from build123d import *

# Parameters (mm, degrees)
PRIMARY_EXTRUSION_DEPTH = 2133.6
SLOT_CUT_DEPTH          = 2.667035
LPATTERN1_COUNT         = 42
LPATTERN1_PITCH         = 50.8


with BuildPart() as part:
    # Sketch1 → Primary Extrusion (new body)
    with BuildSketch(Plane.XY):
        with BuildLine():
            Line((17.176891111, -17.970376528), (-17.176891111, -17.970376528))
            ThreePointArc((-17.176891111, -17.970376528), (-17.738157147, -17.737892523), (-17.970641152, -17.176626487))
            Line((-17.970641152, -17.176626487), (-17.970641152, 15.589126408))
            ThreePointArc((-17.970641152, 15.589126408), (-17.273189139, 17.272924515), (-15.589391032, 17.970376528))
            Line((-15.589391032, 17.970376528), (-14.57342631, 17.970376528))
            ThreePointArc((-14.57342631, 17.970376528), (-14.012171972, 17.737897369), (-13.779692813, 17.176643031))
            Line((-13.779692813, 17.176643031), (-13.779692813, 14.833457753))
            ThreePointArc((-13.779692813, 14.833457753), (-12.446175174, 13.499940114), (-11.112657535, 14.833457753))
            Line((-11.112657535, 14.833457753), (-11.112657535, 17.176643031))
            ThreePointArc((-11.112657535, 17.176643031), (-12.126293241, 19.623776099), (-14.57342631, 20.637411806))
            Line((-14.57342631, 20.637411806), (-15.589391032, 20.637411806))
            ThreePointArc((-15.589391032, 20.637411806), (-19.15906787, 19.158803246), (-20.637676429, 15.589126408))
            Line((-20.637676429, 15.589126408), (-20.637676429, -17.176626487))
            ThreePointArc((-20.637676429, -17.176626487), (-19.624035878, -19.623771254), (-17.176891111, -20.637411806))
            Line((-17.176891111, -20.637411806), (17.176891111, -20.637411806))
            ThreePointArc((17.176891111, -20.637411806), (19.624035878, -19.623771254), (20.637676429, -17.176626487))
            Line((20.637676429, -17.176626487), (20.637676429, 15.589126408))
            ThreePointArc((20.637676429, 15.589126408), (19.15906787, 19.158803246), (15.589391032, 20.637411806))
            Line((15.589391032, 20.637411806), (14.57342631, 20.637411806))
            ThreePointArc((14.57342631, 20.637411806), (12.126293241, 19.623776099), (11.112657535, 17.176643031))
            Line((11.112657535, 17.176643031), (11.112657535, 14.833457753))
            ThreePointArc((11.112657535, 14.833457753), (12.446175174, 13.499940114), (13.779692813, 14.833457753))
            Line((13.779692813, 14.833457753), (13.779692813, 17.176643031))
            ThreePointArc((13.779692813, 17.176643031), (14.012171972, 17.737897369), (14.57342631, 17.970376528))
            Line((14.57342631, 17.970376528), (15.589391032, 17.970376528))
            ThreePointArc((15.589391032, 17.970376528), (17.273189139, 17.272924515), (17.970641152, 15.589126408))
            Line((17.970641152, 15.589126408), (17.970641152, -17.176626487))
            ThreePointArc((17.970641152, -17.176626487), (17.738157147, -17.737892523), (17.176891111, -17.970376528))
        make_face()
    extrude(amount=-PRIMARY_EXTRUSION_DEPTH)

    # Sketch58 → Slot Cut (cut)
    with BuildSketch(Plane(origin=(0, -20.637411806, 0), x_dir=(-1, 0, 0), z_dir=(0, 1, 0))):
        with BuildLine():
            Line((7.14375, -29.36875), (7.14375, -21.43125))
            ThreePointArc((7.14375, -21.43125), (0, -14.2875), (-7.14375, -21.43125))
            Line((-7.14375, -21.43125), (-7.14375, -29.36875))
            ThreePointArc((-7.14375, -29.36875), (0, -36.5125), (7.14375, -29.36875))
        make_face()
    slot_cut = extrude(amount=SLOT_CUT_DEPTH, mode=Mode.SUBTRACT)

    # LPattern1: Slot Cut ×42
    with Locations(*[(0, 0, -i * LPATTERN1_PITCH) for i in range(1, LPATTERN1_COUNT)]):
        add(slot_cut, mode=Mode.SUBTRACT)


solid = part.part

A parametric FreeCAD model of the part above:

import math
import FreeCAD as App
import Part
import Sketcher

V = App.Vector
Q = App.Units.Quantity

doc = App.newDocument("Part")
body = doc.addObject("PartDesign::Body", "Body")

sketch1 = body.newObject("Sketcher::SketchObject", "Sketch")
sketch1.AttachmentSupport = (doc.getObject("XY_Plane"), [""])
sketch1.MapMode = "FlatFace"
sketch1.addGeometry([
    Part.LineSegment(V(17.2, -18, 0), V(-17.2, -18, 0)),
    Part.ArcOfCircle(Part.Circle(V(-17.2, -17.2, 0), V(0, 0, 1), 0.8), math.radians(-180), math.radians(-90)),
    Part.LineSegment(V(-18, -17.2, 0), V(-18, 15.6, 0)),
    Part.ArcOfCircle(Part.Circle(V(-15.6, 15.6, 0), V(0, 0, 1), 2.4), math.radians(90), math.radians(180)),
    Part.LineSegment(V(-15.6, 18, 0), V(-14.6, 18, 0)),
    Part.ArcOfCircle(Part.Circle(V(-14.6, 17.2, 0), V(0, 0, 1), 0.8), math.radians(0), math.radians(90)),
    Part.LineSegment(V(-13.8, 17.2, 0), V(-13.8, 14.8, 0)),
    Part.ArcOfCircle(Part.Circle(V(-12.4, 14.8, 0), V(0, 0, 1), 1.3), math.radians(180), math.radians(360)),
    Part.LineSegment(V(-11.1, 14.8, 0), V(-11.1, 17.2, 0)),
    Part.ArcOfCircle(Part.Circle(V(-14.6, 17.2, 0), V(0, 0, 1), 3.5), math.radians(0), math.radians(90)),
    Part.LineSegment(V(-14.6, 20.6, 0), V(-15.6, 20.6, 0)),
    Part.ArcOfCircle(Part.Circle(V(-15.6, 15.6, 0), V(0, 0, 1), 5), math.radians(90), math.radians(180)),
    Part.LineSegment(V(-20.6, 15.6, 0), V(-20.6, -17.2, 0)),
    Part.ArcOfCircle(Part.Circle(V(-17.2, -17.2, 0), V(0, 0, 1), 3.5), math.radians(180), math.radians(270)),
    Part.LineSegment(V(-17.2, -20.6, 0), V(17.2, -20.6, 0)),
    Part.ArcOfCircle(Part.Circle(V(17.2, -17.2, 0), V(0, 0, 1), 3.5), math.radians(-90), math.radians(0)),
    Part.LineSegment(V(20.6, -17.2, 0), V(20.6, 15.6, 0)),
    Part.ArcOfCircle(Part.Circle(V(15.6, 15.6, 0), V(0, 0, 1), 5), math.radians(0), math.radians(90)),
    Part.LineSegment(V(15.6, 20.6, 0), V(14.6, 20.6, 0)),
    Part.ArcOfCircle(Part.Circle(V(14.6, 17.2, 0), V(0, 0, 1), 3.5), math.radians(90), math.radians(180)),
    Part.LineSegment(V(11.1, 17.2, 0), V(11.1, 14.8, 0)),
    Part.ArcOfCircle(Part.Circle(V(12.4, 14.8, 0), V(0, 0, 1), 1.3), math.radians(180), math.radians(360)),
    Part.LineSegment(V(13.8, 14.8, 0), V(13.8, 17.2, 0)),
    Part.ArcOfCircle(Part.Circle(V(14.6, 17.2, 0), V(0, 0, 1), 0.8), math.radians(90), math.radians(180)),
    Part.LineSegment(V(14.6, 18, 0), V(15.6, 18, 0)),
    Part.ArcOfCircle(Part.Circle(V(15.6, 15.6, 0), V(0, 0, 1), 2.4), math.radians(0), math.radians(90)),
    Part.LineSegment(V(18, 15.6, 0), V(18, -17.2, 0)),
    Part.ArcOfCircle(Part.Circle(V(17.2, -17.2, 0), V(0, 0, 1), 0.8), math.radians(-90), math.radians(0)),
], False)
sketch1.addConstraint([
    Sketcher.Constraint("Tangent", 0, 2, 1, 2),
    Sketcher.Constraint("Tangent", 1, 1, 2, 1),
    Sketcher.Constraint("Tangent", 2, 2, 3, 2),
    Sketcher.Constraint("Tangent", 3, 1, 4, 1),
    Sketcher.Constraint("Tangent", 4, 2, 5, 2),
    Sketcher.Constraint("Tangent", 5, 1, 6, 1),
    Sketcher.Constraint("Tangent", 6, 2, 7, 1),
    Sketcher.Constraint("Tangent", 7, 2, 8, 1),
    Sketcher.Constraint("Tangent", 8, 2, 9, 1),
    Sketcher.Constraint("Tangent", 9, 2, 10, 1),
    Sketcher.Constraint("Tangent", 10, 2, 11, 1),
    Sketcher.Constraint("Tangent", 11, 2, 12, 1),
    Sketcher.Constraint("Tangent", 12, 2, 13, 1),
    Sketcher.Constraint("Tangent", 13, 2, 14, 1),
    Sketcher.Constraint("Tangent", 14, 2, 15, 1),
    Sketcher.Constraint("Tangent", 15, 2, 16, 1),
    Sketcher.Constraint("Tangent", 16, 2, 17, 1),
    Sketcher.Constraint("Tangent", 17, 2, 18, 1),
    Sketcher.Constraint("Tangent", 18, 2, 19, 1),
    Sketcher.Constraint("Tangent", 19, 2, 20, 1),
    Sketcher.Constraint("Tangent", 20, 2, 21, 1),
    Sketcher.Constraint("Tangent", 21, 2, 22, 1),
    Sketcher.Constraint("Tangent", 22, 2, 23, 2),
    Sketcher.Constraint("Tangent", 23, 1, 24, 1),
    Sketcher.Constraint("Tangent", 24, 2, 25, 2),
    Sketcher.Constraint("Tangent", 25, 1, 26, 1),
    Sketcher.Constraint("Tangent", 26, 2, 27, 2),
    Sketcher.Constraint("Tangent", 27, 1, 0, 1),
    Sketcher.Constraint("Horizontal", 0),
    Sketcher.Constraint("Vertical", 2),
    Sketcher.Constraint("Horizontal", 4),
    Sketcher.Constraint("Vertical", 6),
    Sketcher.Constraint("Vertical", 8),
    Sketcher.Constraint("Horizontal", 10),
    Sketcher.Constraint("Vertical", 12),
    Sketcher.Constraint("Horizontal", 14),
    Sketcher.Constraint("Vertical", 16),
    Sketcher.Constraint("Horizontal", 18),
    Sketcher.Constraint("Vertical", 20),
    Sketcher.Constraint("Vertical", 22),
    Sketcher.Constraint("Horizontal", 24),
    Sketcher.Constraint("Vertical", 26),
    Sketcher.Constraint("Coincident", 9, 3, 5, 3),
    Sketcher.Constraint("Coincident", 11, 3, 3, 3),
    Sketcher.Constraint("Coincident", 13, 3, 1, 3),
    Sketcher.Constraint("Coincident", 23, 3, 19, 3),
    Sketcher.Constraint("Coincident", 25, 3, 17, 3),
    Sketcher.Constraint("Coincident", 27, 3, 15, 3),
    Sketcher.Constraint("Equal", 13, 15),
    Sketcher.Constraint("Equal", 11, 17),
    Sketcher.Constraint("Equal", 9, 19),
    Sketcher.Constraint("Symmetric", 3, 3, 17, 3, -2),
    Sketcher.Constraint("Symmetric", 7, 3, 21, 3, -2),
    Sketcher.Constraint("Radius", 1, Q("0.03125 in")),
    Sketcher.Constraint("Radius", 3, Q("0.09375 in")),
    Sketcher.Constraint("Radius", 9, Q("3.460769 mm")),
    Sketcher.Constraint("Radius", 5, Q("0.793733 mm")),
    Sketcher.Constraint("DistanceX", 21, 3, 15, 2, Q("0.3225 in")),
    Sketcher.Constraint("DistanceX", 7, 3, 19, 3, Q("27.019601 mm")),
    Sketcher.Constraint("DistanceY", 2, 1, 2, 2, Q("32.765753 mm")),
    Sketcher.Constraint("DistanceY", 6, 2, 6, 1, Q("2.343185 mm")),
    Sketcher.Constraint("DistanceY", -1, 1, 9, 2, Q("20.637412 mm")),
])
pad1 = body.newObject("PartDesign::Pad", "Pad")
pad1.Profile = sketch1
pad1.Length = Q("84 in")
pad1.Reversed = True

sketch2 = body.newObject("Sketcher::SketchObject", "Sketch001")
sketch2.AttachmentSupport = (doc.getObject("XZ_Plane"), [""])
sketch2.MapMode = "FlatFace"
sketch2.AttachmentOffset = App.Placement(V(0, 0, 20.637412), App.Rotation())
sketch2.addGeometry([
    Part.LineSegment(V(-7, -29, 0), V(-7, -21, 0)),
    Part.ArcOfCircle(Part.Circle(V(0, -21, 0), V(0, 0, 1), 7), math.radians(0), math.radians(180)),
    Part.LineSegment(V(7, -21, 0), V(7, -29, 0)),
    Part.ArcOfCircle(Part.Circle(V(0, -29, 0), V(0, 0, 1), 7), math.radians(180), math.radians(360)),
], False)
sketch2.addConstraint([
    Sketcher.Constraint("Tangent", 0, 2, 1, 2),
    Sketcher.Constraint("Tangent", 1, 1, 2, 1),
    Sketcher.Constraint("Tangent", 2, 2, 3, 2),
    Sketcher.Constraint("Tangent", 3, 1, 0, 1),
    Sketcher.Constraint("Vertical", 0),
    Sketcher.Constraint("Vertical", 2),
    Sketcher.Constraint("PointOnObject", 1, 3, -2),
    Sketcher.Constraint("Radius", 1, Q("0.28125 in")),
    Sketcher.Constraint("DistanceY", 0, 1, 0, 2, Q("0.3125 in")),
    Sketcher.Constraint("DistanceY", 1, 3, -1, 1, Q("0.84375 in")),
])
pocket1 = body.newObject("PartDesign::Pocket", "Pocket")
pocket1.Profile = sketch2
pocket1.Length = 2.667035
doc.recompute()

linearpattern = body.newObject("PartDesign::LinearPattern", "LinearPattern")
linearpattern.Originals = [pocket1]
linearpattern.Direction = (doc.getObject("Z_Axis"), [""])
linearpattern.Mode = "offset"
linearpattern.Offset = Q("2 in")
linearpattern.Occurrences = 42
linearpattern.Reversed = True
body.Tip = linearpattern

doc.recompute()
